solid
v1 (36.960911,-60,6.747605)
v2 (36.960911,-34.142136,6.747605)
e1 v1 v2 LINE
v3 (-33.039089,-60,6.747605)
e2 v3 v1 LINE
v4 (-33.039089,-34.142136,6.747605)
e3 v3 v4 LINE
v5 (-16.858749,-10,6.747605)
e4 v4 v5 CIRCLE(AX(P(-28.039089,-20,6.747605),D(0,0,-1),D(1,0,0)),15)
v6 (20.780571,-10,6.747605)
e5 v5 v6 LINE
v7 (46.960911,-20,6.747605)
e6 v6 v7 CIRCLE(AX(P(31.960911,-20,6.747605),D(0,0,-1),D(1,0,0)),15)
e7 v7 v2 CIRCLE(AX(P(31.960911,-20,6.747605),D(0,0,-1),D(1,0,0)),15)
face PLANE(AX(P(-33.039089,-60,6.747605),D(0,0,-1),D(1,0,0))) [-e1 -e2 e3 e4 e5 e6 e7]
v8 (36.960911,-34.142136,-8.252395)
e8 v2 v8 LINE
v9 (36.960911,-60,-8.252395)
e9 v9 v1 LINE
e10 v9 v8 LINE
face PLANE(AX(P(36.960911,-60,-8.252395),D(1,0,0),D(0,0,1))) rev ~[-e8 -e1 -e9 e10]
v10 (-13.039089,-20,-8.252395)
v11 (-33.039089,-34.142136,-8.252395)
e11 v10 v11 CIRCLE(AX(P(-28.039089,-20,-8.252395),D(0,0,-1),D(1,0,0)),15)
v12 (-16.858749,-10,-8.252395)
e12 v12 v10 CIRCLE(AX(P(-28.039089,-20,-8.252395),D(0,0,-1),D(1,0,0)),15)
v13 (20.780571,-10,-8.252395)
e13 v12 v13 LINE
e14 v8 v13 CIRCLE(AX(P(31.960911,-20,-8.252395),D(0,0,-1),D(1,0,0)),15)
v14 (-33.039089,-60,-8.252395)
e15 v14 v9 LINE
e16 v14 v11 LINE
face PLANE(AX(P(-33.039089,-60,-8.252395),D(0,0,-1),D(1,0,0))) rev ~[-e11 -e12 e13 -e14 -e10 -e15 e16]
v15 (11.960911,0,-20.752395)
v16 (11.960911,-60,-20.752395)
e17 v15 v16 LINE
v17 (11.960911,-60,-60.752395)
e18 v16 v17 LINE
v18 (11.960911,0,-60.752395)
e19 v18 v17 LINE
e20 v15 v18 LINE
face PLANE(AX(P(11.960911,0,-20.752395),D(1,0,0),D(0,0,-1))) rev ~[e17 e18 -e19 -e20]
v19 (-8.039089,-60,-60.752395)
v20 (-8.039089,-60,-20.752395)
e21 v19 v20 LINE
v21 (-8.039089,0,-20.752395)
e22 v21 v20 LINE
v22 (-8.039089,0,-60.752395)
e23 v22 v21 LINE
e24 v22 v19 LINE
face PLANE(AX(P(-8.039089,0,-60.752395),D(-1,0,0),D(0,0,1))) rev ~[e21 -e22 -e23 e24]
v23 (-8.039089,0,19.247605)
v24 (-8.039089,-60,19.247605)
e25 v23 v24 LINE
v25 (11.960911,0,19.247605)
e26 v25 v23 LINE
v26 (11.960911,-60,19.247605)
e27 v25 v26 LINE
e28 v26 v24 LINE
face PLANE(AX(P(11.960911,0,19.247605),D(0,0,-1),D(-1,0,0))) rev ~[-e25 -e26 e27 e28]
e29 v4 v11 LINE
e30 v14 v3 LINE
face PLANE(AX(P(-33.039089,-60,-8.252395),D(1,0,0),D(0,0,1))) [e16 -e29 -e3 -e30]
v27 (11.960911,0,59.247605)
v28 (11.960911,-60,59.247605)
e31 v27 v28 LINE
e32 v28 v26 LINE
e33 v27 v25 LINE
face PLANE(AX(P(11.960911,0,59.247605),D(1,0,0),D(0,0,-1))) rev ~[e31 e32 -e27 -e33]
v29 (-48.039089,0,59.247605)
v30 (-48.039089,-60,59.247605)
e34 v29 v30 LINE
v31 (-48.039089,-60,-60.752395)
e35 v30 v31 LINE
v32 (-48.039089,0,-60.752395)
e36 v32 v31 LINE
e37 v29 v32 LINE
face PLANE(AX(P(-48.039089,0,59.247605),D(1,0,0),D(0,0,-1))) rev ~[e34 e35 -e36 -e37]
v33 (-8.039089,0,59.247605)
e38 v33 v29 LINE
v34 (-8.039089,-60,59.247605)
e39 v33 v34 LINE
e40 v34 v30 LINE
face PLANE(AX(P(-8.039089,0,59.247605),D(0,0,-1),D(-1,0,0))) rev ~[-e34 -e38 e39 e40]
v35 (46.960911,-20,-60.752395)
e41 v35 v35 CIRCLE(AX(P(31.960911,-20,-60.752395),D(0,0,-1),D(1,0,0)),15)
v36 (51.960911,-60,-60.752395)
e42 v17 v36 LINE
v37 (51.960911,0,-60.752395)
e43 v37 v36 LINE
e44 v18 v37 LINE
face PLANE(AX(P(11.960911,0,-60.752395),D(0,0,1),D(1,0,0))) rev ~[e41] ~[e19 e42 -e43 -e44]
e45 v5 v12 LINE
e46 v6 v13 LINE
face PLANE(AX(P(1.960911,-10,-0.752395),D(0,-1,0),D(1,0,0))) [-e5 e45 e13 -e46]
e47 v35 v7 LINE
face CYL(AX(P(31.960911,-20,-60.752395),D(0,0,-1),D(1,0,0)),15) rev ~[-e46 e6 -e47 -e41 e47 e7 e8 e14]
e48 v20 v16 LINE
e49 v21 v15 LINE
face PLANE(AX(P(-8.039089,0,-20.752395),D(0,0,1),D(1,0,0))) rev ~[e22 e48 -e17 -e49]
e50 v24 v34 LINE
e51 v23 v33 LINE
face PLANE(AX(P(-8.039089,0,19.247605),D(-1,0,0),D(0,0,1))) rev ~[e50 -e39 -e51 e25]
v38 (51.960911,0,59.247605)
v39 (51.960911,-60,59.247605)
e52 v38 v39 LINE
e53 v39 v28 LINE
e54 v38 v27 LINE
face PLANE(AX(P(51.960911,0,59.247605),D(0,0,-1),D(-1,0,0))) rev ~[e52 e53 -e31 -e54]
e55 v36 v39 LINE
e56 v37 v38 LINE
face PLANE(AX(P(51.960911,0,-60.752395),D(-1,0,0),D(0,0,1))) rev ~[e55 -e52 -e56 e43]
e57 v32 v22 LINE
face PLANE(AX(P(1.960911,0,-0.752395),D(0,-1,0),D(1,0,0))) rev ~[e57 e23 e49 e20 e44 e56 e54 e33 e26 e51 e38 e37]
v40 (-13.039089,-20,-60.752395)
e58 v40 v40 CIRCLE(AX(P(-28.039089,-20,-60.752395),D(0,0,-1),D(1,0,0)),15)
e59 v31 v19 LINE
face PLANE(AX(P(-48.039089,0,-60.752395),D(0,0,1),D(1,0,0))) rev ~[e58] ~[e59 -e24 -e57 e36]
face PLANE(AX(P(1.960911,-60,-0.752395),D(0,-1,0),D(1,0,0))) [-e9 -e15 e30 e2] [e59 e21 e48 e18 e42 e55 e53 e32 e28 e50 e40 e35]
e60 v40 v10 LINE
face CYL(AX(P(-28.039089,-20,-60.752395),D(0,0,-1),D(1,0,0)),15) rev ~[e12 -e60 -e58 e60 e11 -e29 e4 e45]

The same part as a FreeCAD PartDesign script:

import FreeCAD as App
import Part
import Sketcher
from FreeCAD import Vector

doc = App.newDocument("Part")
body = doc.addObject("PartDesign::Body", "Body")

sketch1 = body.newObject("Sketcher::SketchObject", "Sketch")
sketch1.AttachmentSupport = (doc.getObject("XZ_Plane"), [""])
sketch1.MapMode = "FlatFace"
sketch1.addGeometry([
    Part.LineSegment(Vector(-8.039089, 59.247605, 0), Vector(-48.039089, 59.247605, 0)),
    Part.LineSegment(Vector(-48.039089, 59.247605, 0), Vector(-48.039089, -60.752395, 0)),
    Part.LineSegment(Vector(-48.039089, -60.752395, 0), Vector(-8.039089, -60.752395, 0)),
    Part.LineSegment(Vector(-8.039089, -60.752395, 0), Vector(-8.039089, -20.752395, 0)),
    Part.LineSegment(Vector(-8.039089, -20.752395, 0), Vector(11.960911, -20.752395, 0)),
    Part.LineSegment(Vector(11.960911, -20.752395, 0), Vector(11.960911, -60.752395, 0)),
    Part.LineSegment(Vector(11.960911, -60.752395, 0), Vector(51.960911, -60.752395, 0)),
    Part.LineSegment(Vector(51.960911, -60.752395, 0), Vector(51.960911, 59.247605, 0)),
    Part.LineSegment(Vector(51.960911, 59.247605, 0), Vector(11.960911, 59.247605, 0)),
    Part.LineSegment(Vector(11.960911, 59.247605, 0), Vector(11.960911, 19.247605, 0)),
    Part.LineSegment(Vector(11.960911, 19.247605, 0), Vector(-8.039089, 19.247605, 0)),
    Part.LineSegment(Vector(-8.039089, 19.247605, 0), Vector(-8.039089, 59.247605, 0)),
], False)
sketch1.addConstraint([
    Sketcher.Constraint("Coincident", 0, 2, 1, 1),
    Sketcher.Constraint("Coincident", 1, 2, 2, 1),
    Sketcher.Constraint("Coincident", 2, 2, 3, 1),
    Sketcher.Constraint("Coincident", 3, 2, 4, 1),
    Sketcher.Constraint("Coincident", 4, 2, 5, 1),
    Sketcher.Constraint("Coincident", 5, 2, 6, 1),
    Sketcher.Constraint("Coincident", 6, 2, 7, 1),
    Sketcher.Constraint("Coincident", 7, 2, 8, 1),
    Sketcher.Constraint("Coincident", 8, 2, 9, 1),
    Sketcher.Constraint("Coincident", 9, 2, 10, 1),
    Sketcher.Constraint("Coincident", 10, 2, 11, 1),
    Sketcher.Constraint("Coincident", 11, 2, 0, 1),
    Sketcher.Constraint("Horizontal", 0),
    Sketcher.Constraint("Vertical", 1),
    Sketcher.Constraint("Horizontal", 2),
    Sketcher.Constraint("Vertical", 3),
    Sketcher.Constraint("Horizontal", 4),
    Sketcher.Constraint("Vertical", 5),
    Sketcher.Constraint("Horizontal", 6),
    Sketcher.Constraint("Vertical", 7),
    Sketcher.Constraint("Horizontal", 8),
    Sketcher.Constraint("Vertical", 9),
    Sketcher.Constraint("Horizontal", 10),
    Sketcher.Constraint("Vertical", 11),
    Sketcher.Constraint("Horizontal", 2, 2, 5, 2),
    Sketcher.Constraint("Horizontal", 0, 2, 7, 2),
    Sketcher.Constraint("Vertical", 5, 2, 8, 2),
    Sketcher.Constraint("Vertical", 3, 2, 10, 2),
    Sketcher.Constraint("Equal", 2, 6),
    Sketcher.Constraint("Equal", 8, 3),
    Sketcher.Constraint("Equal", 5, 9),
    Sketcher.Constraint("DistanceX", 0, 2, 0, 1, 40.0),
    Sketcher.Constraint("DistanceX", 4, 1, 4, 2, 20.0),
    Sketcher.Constraint("DistanceY", 1, 2, 1, 1, 120.0),
    Sketcher.Constraint("DistanceX", 0, 2, -1, 1, 48.039089),
    Sketcher.Constraint("DistanceY", -1, 1, 0, 2, 59.247605),
])
pad1 = body.newObject("PartDesign::Pad", "Pad")
pad1.Profile = sketch1
pad1.Length = 60

sketch2 = body.newObject("Sketcher::SketchObject", "Sketch001")
sketch2.AttachmentSupport = (doc.getObject("XZ_Plane"), [""])
sketch2.MapMode = "FlatFace"
sketch2.AttachmentOffset = App.Placement(Vector(0, 0, 60), App.Rotation())
sketch2.addGeometry([
    Part.LineSegment(Vector(-33.039089, 6.747605, 0), Vector(-33.039089, -8.252395, 0)),
    Part.LineSegment(Vector(-33.039089, -8.252395, 0), Vector(36.960911, -8.252395, 0)),
    Part.LineSegment(Vector(36.960911, -8.252395, 0), Vector(36.960911, 6.747605, 0)),
    Part.LineSegment(Vector(36.960911, 6.747605, 0), Vector(-33.039089, 6.747605, 0)),
], False)
sketch2.addConstraint([
    Sketcher.Constraint("Coincident", 0, 2, 1, 1),
    Sketcher.Constraint("Coincident", 1, 2, 2, 1),
    Sketcher.Constraint("Coincident", 2, 2, 3, 1),
    Sketcher.Constraint("Coincident", 3, 2, 0, 1),
    Sketcher.Constraint("Vertical", 0),
    Sketcher.Constraint("Horizontal", 1),
    Sketcher.Constraint("Vertical", 2),
    Sketcher.Constraint("Horizontal", 3),
    Sketcher.Constraint("DistanceX", 1, 1, 1, 2, 70.0),
    Sketcher.Constraint("DistanceY", 0, 2, 0, 1, 15.0),
    Sketcher.Constraint("DistanceX", 0, 2, -1, 1, 33.039089),
    Sketcher.Constraint("DistanceY", 0, 2, -1, 1, 8.252395),
])
pocket1 = body.newObject("PartDesign::Pocket", "Pocket")
pocket1.Profile = sketch2
pocket1.Length = 50

sketch3 = body.newObject("Sketcher::SketchObject", "Sketch002")
sketch3.AttachmentSupport = (doc.getObject("XY_Plane"), [""])
sketch3.MapMode = "FlatFace"
sketch3.AttachmentOffset = App.Placement(Vector(0, 0, -60.752395), App.Rotation())
sketch3.addGeometry([
    Part.Circle(Vector(-28.039089, -20, 0), Vector(0, 0, 1), 15),
    Part.Circle(Vector(31.960911, -20, 0), Vector(0, 0, 1), 15),
], False)
sketch3.addConstraint([
    Sketcher.Constraint("Equal", 0, 1),
    Sketcher.Constraint("Horizontal", 0, 3, 1, 3),
    Sketcher.Constraint("Diameter", 0, 30.0),
    Sketcher.Constraint("DistanceY", 0, 3, -1, 1, 20.0),
    Sketcher.Constraint("DistanceX", 0, 3, 1, 3, 60.0),
    Sketcher.Constraint("DistanceX", 0, 3, -1, 1, 28.039089),
])
pocket2 = body.newObject("PartDesign::Pocket", "Pocket001")
pocket2.Profile = sketch3
pocket2.Length = 67.5
pocket2.Reversed = True

doc.recompute()
